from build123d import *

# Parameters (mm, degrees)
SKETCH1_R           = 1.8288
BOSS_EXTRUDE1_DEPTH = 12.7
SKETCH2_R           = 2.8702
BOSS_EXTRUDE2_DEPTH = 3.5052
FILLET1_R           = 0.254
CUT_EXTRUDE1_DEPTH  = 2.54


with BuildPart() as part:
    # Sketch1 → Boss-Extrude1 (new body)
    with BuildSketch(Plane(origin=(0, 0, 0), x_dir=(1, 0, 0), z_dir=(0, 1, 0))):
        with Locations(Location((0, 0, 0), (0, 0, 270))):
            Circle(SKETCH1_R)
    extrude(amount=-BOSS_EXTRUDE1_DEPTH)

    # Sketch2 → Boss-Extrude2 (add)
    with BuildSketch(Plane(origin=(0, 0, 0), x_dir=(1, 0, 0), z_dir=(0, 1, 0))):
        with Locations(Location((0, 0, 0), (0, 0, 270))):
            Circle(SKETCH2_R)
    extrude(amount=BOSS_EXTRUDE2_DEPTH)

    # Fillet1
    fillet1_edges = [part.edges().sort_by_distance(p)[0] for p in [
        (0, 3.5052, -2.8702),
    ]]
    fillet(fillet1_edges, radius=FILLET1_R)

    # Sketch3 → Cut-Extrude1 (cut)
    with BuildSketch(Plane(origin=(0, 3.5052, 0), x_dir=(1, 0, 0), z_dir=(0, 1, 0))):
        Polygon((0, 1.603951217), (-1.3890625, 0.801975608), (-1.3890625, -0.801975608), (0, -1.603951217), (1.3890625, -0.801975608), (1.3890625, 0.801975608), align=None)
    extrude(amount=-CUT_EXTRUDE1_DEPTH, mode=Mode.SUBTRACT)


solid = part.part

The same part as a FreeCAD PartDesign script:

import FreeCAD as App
import Part
import Sketcher
from FreeCAD import Vector
Q = App.Units.Quantity


def edges_at(feature, points):
    """Names of the edges that pass closest to the given points."""
    edges = feature.Shape.Edges
    near = lambda p: min(range(len(edges)), key=lambda i: edges[i].distToShape(Part.Vertex(*p))[0])
    return sorted({f"Edge{near(p) + 1}" for p in points})

doc = App.newDocument("Part")
body = doc.addObject("PartDesign::Body", "Body")

# Sketch on XZ plane
sketch1 = body.newObject("Sketcher::SketchObject", "Sketch")
sketch1.AttachmentSupport = (doc.getObject("XZ_Plane"), [""])
sketch1.MapMode = "FlatFace"
sketch1.addGeometry(Part.Circle(Vector(0, 0, 0), Vector(0, 0, 1), 1.8288), False)
sketch1.addConstraint([
    Sketcher.Constraint("Coincident", 0, 3, -1, 1),
    Sketcher.Constraint("Diameter", 0, Q("0.144 in")),
])
pad1 = body.newObject("PartDesign::Pad", "Pad")
pad1.Profile = sketch1
pad1.Length = Q("0.5 in")

# Sketch on XZ plane
sketch2 = body.newObject("Sketcher::SketchObject", "Sketch001")
sketch2.AttachmentSupport = (doc.getObject("XZ_Plane"), [""])
sketch2.MapMode = "FlatFace"
sketch2.addGeometry(Part.Circle(Vector(0, 0, 0), Vector(0, 0, 1), 2.8702), False)
sketch2.addConstraint([
    Sketcher.Constraint("Coincident", 0, 3, -1, 1),
    Sketcher.Constraint("Diameter", 0, Q("0.226 in")),
])
pad2 = body.newObject("PartDesign::Pad", "Pad001")
pad2.Profile = sketch2
pad2.Length = Q("0.138 in")
pad2.Reversed = True
doc.recompute()

fillet = body.newObject("PartDesign::Fillet", "Fillet")
fillet.Base = (pad2, edges_at(pad2, [(0, 3.505, -2.87)]))
fillet.Radius = Q("0.01 in")

# Sketch on XZ plane
sketch3 = body.newObject("Sketcher::SketchObject", "Sketch002")
sketch3.AttachmentSupport = (doc.getObject("XZ_Plane"), [""])
sketch3.MapMode = "FlatFace"
sketch3.AttachmentOffset = App.Placement(Vector(0, 0, -0.138 * 25.4), App.Rotation())
sketch3.addGeometry([
    Part.LineSegment(Vector(0, -1.603951, 0), Vector(-1.389063, -0.801976, 0)),  # 0
    Part.LineSegment(Vector(-1.389063, -0.801976, 0), Vector(-1.389063, 0.801976, 0)),  # 1
    Part.LineSegment(Vector(-1.389063, 0.801976, 0), Vector(0, 1.603951, 0)),  # 2
    Part.LineSegment(Vector(0, 1.603951, 0), Vector(1.389063, 0.801976, 0)),  # 3
    Part.LineSegment(Vector(1.389063, 0.801976, 0), Vector(1.389063, -0.801976, 0)),  # 4
    Part.LineSegment(Vector(1.389063, -0.801976, 0), Vector(0, -1.603951, 0)),  # 5
], False)
sketch3.addConstraint([
    Sketcher.Constraint("Coincident", 0, 2, 1, 1),
    Sketcher.Constraint("Coincident", 1, 2, 2, 1),
    Sketcher.Constraint("Coincident", 2, 2, 3, 1),
    Sketcher.Constraint("Coincident", 3, 2, 4, 1),
    Sketcher.Constraint("Coincident", 4, 2, 5, 1),
    Sketcher.Constraint("Coincident", 5, 2, 0, 1),
    Sketcher.Constraint("Vertical", 1),
    Sketcher.Constraint("Vertical", 4),
    Sketcher.Constraint("Symmetric", 0, 2, 3, 2, -1, 1),
    Sketcher.Constraint("Symmetric", 2, 2, 5, 2, -1, 1),
    Sketcher.Constraint("PointOnObject", 2, 2, -2),
    Sketcher.Constraint("Parallel", 2, 5),
    Sketcher.Constraint("Horizontal", 1, 2, 3, 2),
    Sketcher.Constraint("Angle", 0, Q("150 deg")),
    Sketcher.Constraint("DistanceX", 1, 2, 3, 2, Q("0.109375 in")),
    Sketcher.Constraint("DistanceY", 1, 1, 1, 2, Q("1.603951 mm")),
])
pocket1 = body.newObject("PartDesign::Pocket", "Pocket")
pocket1.Profile = sketch3
pocket1.Length = Q("0.1 in")
pocket1.Reversed = True

doc.recompute()
